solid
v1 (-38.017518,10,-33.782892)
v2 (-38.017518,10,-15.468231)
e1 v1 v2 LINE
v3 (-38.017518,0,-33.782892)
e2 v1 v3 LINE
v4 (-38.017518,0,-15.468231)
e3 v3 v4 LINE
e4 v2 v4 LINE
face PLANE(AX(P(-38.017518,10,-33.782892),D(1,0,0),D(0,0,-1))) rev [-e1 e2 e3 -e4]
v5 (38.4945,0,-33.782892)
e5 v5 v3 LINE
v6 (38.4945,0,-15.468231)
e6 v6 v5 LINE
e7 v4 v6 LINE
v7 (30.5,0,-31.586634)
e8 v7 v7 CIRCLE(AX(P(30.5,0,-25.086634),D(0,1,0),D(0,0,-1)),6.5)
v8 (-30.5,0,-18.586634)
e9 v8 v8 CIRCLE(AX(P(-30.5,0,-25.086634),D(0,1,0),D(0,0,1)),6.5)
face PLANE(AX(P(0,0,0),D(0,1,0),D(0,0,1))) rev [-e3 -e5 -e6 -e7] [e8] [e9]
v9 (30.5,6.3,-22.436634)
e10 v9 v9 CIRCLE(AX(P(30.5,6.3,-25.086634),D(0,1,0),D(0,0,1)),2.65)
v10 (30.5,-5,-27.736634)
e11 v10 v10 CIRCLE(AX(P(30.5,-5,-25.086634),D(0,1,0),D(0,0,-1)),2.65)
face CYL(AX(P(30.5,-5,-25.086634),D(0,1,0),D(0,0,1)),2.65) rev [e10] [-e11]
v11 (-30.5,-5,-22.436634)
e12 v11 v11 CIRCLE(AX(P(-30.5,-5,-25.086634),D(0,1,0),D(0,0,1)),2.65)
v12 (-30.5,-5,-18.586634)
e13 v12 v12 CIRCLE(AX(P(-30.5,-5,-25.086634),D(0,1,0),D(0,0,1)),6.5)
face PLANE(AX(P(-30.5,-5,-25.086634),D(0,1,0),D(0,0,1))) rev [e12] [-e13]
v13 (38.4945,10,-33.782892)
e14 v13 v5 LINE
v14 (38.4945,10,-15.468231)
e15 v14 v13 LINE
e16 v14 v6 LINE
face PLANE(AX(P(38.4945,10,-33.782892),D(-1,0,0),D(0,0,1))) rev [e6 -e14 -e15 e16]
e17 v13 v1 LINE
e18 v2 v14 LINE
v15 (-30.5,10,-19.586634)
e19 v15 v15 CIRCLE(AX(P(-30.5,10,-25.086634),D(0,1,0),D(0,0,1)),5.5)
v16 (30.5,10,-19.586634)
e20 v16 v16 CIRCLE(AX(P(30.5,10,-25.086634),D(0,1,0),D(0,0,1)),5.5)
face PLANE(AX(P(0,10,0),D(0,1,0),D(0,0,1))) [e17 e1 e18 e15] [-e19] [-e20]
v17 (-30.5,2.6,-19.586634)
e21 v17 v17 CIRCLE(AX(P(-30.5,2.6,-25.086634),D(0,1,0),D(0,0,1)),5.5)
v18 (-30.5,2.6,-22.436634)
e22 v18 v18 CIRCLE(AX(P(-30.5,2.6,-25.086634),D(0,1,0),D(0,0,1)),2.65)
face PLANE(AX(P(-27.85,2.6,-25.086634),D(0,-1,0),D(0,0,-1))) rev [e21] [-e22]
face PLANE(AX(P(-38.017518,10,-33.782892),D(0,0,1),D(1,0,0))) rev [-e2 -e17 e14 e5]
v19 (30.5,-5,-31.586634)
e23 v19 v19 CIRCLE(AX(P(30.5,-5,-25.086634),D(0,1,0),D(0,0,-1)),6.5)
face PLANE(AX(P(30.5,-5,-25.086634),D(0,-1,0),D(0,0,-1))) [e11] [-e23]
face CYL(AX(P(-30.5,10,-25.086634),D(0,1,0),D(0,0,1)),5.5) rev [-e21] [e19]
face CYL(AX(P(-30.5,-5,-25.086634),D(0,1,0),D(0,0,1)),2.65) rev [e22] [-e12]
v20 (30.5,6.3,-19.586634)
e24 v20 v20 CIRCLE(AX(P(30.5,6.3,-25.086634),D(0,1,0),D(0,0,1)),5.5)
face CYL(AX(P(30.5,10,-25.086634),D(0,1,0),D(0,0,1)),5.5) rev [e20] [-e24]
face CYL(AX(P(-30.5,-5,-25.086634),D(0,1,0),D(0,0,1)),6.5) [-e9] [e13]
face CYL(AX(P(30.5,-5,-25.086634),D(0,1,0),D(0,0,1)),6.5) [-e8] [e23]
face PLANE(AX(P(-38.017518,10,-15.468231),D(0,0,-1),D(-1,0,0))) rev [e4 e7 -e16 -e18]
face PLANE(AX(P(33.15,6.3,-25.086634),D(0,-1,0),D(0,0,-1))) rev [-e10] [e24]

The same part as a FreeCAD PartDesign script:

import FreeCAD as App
import Part
import Sketcher
from FreeCAD import Vector

doc = App.newDocument("Part")
body = doc.addObject("PartDesign::Body", "Body")

# Sketch on XZ plane
sketch1 = body.newObject("Sketcher::SketchObject", "Sketch")
sketch1.AttachmentSupport = (doc.getObject("XZ_Plane"), [""])
sketch1.MapMode = "FlatFace"
sketch1.addGeometry([
    Part.LineSegment(Vector(-38, -34, 0), Vector(-38, -15, 0)),
    Part.LineSegment(Vector(-38, -15, 0), Vector(38, -15, 0)),
    Part.LineSegment(Vector(38, -15, 0), Vector(38, -34, 0)),
    Part.LineSegment(Vector(38, -34, 0), Vector(-38, -34, 0)),
], False)
sketch1.addConstraint([
    Sketcher.Constraint("Coincident", 0, 2, 1, 1),
    Sketcher.Constraint("Coincident", 1, 2, 2, 1),
    Sketcher.Constraint("Coincident", 2, 2, 3, 1),
    Sketcher.Constraint("Coincident", 3, 2, 0, 1),
    Sketcher.Constraint("Vertical", 0),
    Sketcher.Constraint("Horizontal", 1),
    Sketcher.Constraint("Vertical", 2),
    Sketcher.Constraint("Horizontal", 3),
    Sketcher.Constraint("DistanceX", 1, 1, 1, 2, 76.512019),
    Sketcher.Constraint("DistanceY", 0, 1, 0, 2, 18.314661),
    Sketcher.Constraint("DistanceX", -1, 1, 1, 2, 38.4945),
    Sketcher.Constraint("DistanceY", 0, 2, -1, 1, 15.468231),
])
pad1 = body.newObject("PartDesign::Pad", "Pad")
pad1.Profile = sketch1
pad1.Length = 10
pad1.Reversed = True

# Sketch on XZ plane
sketch2 = body.newObject("Sketcher::SketchObject", "Sketch001")
sketch2.AttachmentSupport = (doc.getObject("XZ_Plane"), [""])
sketch2.MapMode = "FlatFace"
sketch2.addGeometry([
    Part.Circle(Vector(-30.5, -25.1, 0), Vector(0, 0, 1), 6.5),
    Part.Circle(Vector(-30.5, -25.1, 0), Vector(0, 0, 1), 2.6),
    Part.Circle(Vector(30.5, -25.1, 0), Vector(0, 0, 1), 6.5),
    Part.Circle(Vector(30.5, -25.1, 0), Vector(0, 0, 1), 2.6),
], False)
sketch2.addConstraint([
    Sketcher.Constraint("Coincident", 1, 3, 0, 3),
    Sketcher.Constraint("Coincident", 3, 3, 2, 3),
    Sketcher.Constraint("Equal", 0, 2),
    Sketcher.Constraint("Equal", 1, 3),
    Sketcher.Constraint("Symmetric", 0, 3, 2, 3, -2),
    Sketcher.Constraint("Diameter", 0, 13.0),
    Sketcher.Constraint("Diameter", 1, 5.3),
    Sketcher.Constraint("DistanceX", 0, 3, 2, 3, 61.0),
    Sketcher.Constraint("DistanceY", 0, 3, -1, 1, 25.086634),
])
pad2 = body.newObject("PartDesign::Pad", "Pad001")
pad2.Profile = sketch2
pad2.Length = 5

# Sketch on XZ plane
sketch3 = body.newObject("Sketcher::SketchObject", "Sketch002")
sketch3.AttachmentSupport = (doc.getObject("XZ_Plane"), [""])
sketch3.MapMode = "FlatFace"
sketch3.addGeometry([
    Part.Circle(Vector(-30.5, -25.1, 0), Vector(0, 0, 1), 2.5),
    Part.Circle(Vector(30.5, -25.1, 0), Vector(0, 0, 1), 2.5),
], False)
sketch3.addConstraint([
    Sketcher.Constraint("Equal", 0, 1),
    Sketcher.Constraint("Symmetric", 0, 3, 1, 3, -2),
    Sketcher.Constraint("Diameter", 0, 5.0),
    Sketcher.Constraint("DistanceX", 0, 3, 1, 3, 61.0),
    Sketcher.Constraint("DistanceY", 0, 3, -1, 1, 25.086634),
])
pocket1 = body.newObject("PartDesign::Pocket", "Pocket")
pocket1.Profile = sketch3
pocket1.Type = "ThroughAll"
pocket1.Midplane = True

# Sketch on XZ plane
sketch4 = body.newObject("Sketcher::SketchObject", "Sketch003")
sketch4.AttachmentSupport = (doc.getObject("XZ_Plane"), [""])
sketch4.MapMode = "FlatFace"
sketch4.AttachmentOffset = App.Placement(Vector(0, 0, -10), App.Rotation())
sketch4.addGeometry(Part.Circle(Vector(-30.5, -25.1, 0), Vector(0, 0, 1), 2.6), False)
sketch4.addConstraint([
    Sketcher.Constraint("Diameter", 0, 5.3),
    Sketcher.Constraint("DistanceX", 0, 3, -1, 1, 30.5),
    Sketcher.Constraint("DistanceY", 0, 3, -1, 1, 25.086634),
])
doc.recompute()
hole = body.newObject("PartDesign::Hole", "Hole")
hole.Profile = sketch4
hole.ThreadType = "None"
hole.Diameter = 5.3
hole.DepthType = "ThroughAll"
hole.HoleCutType = "Counterbore"
hole.HoleCutDiameter = 11
hole.HoleCutDepth = 3.7
hole.Reversed = True

# Sketch on XZ plane
sketch5 = body.newObject("Sketcher::SketchObject", "Sketch004")
sketch5.AttachmentSupport = (doc.getObject("XZ_Plane"), [""])
sketch5.MapMode = "FlatFace"
sketch5.AttachmentOffset = App.Placement(Vector(0, 0, -6.3), App.Rotation())
sketch5.addGeometry(Part.Circle(Vector(-30.5, -25.1, 0), Vector(0, 0, 1), 2.6), False)
sketch5.addConstraint([
    Sketcher.Constraint("Diameter", 0, 5.3),
    Sketcher.Constraint("DistanceX", 0, 3, -1, 1, 30.5),
    Sketcher.Constraint("DistanceY", 0, 3, -1, 1, 25.086634),
])
doc.recompute()
hole2 = body.newObject("PartDesign::Hole", "Hole001")
hole2.Profile = sketch5
hole2.ThreadType = "None"
hole2.Diameter = 5.3
hole2.DepthType = "ThroughAll"
hole2.HoleCutType = "Counterbore"
hole2.HoleCutDiameter = 11
hole2.HoleCutDepth = 3.7
hole2.Reversed = True

# Sketch on XZ plane
sketch6 = body.newObject("Sketcher::SketchObject", "Sketch005")
sketch6.AttachmentSupport = (doc.getObject("XZ_Plane"), [""])
sketch6.MapMode = "FlatFace"
sketch6.AttachmentOffset = App.Placement(Vector(0, 0, -10), App.Rotation())
sketch6.addGeometry(Part.Circle(Vector(30.5, -25.1, 0), Vector(0, 0, 1), 2.6), False)
sketch6.addConstraint([
    Sketcher.Constraint("Diameter", 0, 5.3),
    Sketcher.Constraint("DistanceX", -1, 1, 0, 3, 30.5),
    Sketcher.Constraint("DistanceY", 0, 3, -1, 1, 25.086634),
])
doc.recompute()
hole3 = body.newObject("PartDesign::Hole", "Hole002")
hole3.Profile = sketch6
hole3.ThreadType = "None"
hole3.Diameter = 5.3
hole3.DepthType = "ThroughAll"
hole3.HoleCutType = "Counterbore"
hole3.HoleCutDiameter = 11
hole3.HoleCutDepth = 3.7
hole3.Reversed = True

doc.recompute()
